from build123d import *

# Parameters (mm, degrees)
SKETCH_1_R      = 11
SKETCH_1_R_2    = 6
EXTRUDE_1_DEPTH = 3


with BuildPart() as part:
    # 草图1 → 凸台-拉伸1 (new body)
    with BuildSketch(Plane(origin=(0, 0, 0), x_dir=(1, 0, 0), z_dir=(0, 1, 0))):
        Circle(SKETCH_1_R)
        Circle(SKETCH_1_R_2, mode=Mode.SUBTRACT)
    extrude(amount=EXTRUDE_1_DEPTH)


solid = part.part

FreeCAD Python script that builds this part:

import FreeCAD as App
import Part
import Sketcher

doc = App.newDocument("Part")
body = doc.addObject("PartDesign::Body", "Body")

# Sketch on XZ plane
sketch1 = doc.addObject("Sketcher::SketchObject", "Sketch")
body.addObject(sketch1)
sketch1.AttachmentSupport = (doc.XZ_Plane, [""])
sketch1.MapMode = "FlatFace"
sketch1.addGeometry(Part.Circle(App.Vector(0, 0, 0), App.Vector(0, 0, 1), 11), False)
sketch1.addGeometry(Part.Circle(App.Vector(0, 0, 0), App.Vector(0, 0, 1), 6), False)
sketch1.addConstraint(Sketcher.Constraint("Coincident", 0, 3, -1, 1))
sketch1.addConstraint(Sketcher.Constraint("Coincident", 1, 3, -1, 1))
sketch1.addConstraint(Sketcher.Constraint("Diameter", 0, 22.0))
sketch1.addConstraint(Sketcher.Constraint("Diameter", 1, 12.0))
pad1 = doc.addObject("PartDesign::Pad", "Pad")
body.addObject(pad1)
pad1.Profile = sketch1
pad1.Length = 3
pad1.Reversed = True

doc.recompute()
